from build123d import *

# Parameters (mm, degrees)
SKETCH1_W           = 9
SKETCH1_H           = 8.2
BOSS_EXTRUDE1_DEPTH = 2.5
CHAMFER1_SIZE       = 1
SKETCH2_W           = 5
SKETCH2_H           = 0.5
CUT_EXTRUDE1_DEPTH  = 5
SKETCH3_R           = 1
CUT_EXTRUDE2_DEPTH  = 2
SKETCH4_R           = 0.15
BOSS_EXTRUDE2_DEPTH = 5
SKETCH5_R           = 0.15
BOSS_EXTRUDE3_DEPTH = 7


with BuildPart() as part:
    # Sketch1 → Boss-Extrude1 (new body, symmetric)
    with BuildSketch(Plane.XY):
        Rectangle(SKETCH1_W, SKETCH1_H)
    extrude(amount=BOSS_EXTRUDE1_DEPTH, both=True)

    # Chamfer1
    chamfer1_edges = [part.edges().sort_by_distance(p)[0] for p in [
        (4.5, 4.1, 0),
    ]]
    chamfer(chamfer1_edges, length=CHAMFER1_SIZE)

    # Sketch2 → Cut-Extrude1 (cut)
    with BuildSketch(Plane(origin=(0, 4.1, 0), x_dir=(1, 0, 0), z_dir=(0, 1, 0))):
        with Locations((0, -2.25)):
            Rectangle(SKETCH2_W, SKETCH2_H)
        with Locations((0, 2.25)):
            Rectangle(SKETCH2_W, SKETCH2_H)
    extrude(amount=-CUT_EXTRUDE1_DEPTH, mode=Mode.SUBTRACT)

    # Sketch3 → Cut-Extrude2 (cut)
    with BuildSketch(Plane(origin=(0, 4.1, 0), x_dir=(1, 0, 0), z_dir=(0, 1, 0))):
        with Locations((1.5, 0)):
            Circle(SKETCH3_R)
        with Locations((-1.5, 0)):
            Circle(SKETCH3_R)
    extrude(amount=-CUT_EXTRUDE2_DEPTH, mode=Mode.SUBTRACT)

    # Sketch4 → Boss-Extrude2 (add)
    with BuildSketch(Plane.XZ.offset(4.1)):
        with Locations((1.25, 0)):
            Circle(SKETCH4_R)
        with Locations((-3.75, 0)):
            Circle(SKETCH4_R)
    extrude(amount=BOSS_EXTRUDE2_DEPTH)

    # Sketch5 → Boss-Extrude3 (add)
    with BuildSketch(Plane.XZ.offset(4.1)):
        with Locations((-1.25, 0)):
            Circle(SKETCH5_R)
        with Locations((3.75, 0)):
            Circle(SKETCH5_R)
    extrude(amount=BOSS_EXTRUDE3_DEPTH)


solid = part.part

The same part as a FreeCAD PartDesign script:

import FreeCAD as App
import Part
import Sketcher
from FreeCAD import Vector
Q = App.Units.Quantity


def edges_at(feature, points):
    """Names of the edges that pass closest to the given points."""
    edges = feature.Shape.Edges
    near = lambda p: min(range(len(edges)), key=lambda i: edges[i].distToShape(Part.Vertex(*p))[0])
    return sorted({f"Edge{near(p) + 1}" for p in points})


def add_polygon(sketch, points):
    """Adds a closed chain of lines whose ends are joined by coincident constraints."""
    first, n = sketch.GeometryCount, len(points)
    for a, b in zip(points, points[1:] + points[:1]):
        sketch.addGeometry(Part.LineSegment(App.Vector(*a, 0), App.Vector(*b, 0)), False)
    for i in range(n):
        sketch.addConstraint(Sketcher.Constraint("Coincident", first + i, 2, first + (i + 1) % n, 1))

doc = App.newDocument("Part")
body = doc.addObject("PartDesign::Body", "Body")

# Sketch on XY plane
sketch1 = body.newObject("Sketcher::SketchObject", "Sketch")
sketch1.AttachmentSupport = (doc.getObject("XY_Plane"), [""])
sketch1.MapMode = "FlatFace"
add_polygon(sketch1, [(-4, 4), (-4, -4), (4, -4), (4, 4)])  # lines 0-3
sketch1.addConstraint([
    Sketcher.Constraint("Vertical", 0),
    Sketcher.Constraint("Horizontal", 1),
    Sketcher.Constraint("Vertical", 2),
    Sketcher.Constraint("Horizontal", 3),
    Sketcher.Constraint("Symmetric", 0, 2, 2, 2, -1, 1),
    Sketcher.Constraint("DistanceX", 1, 1, 1, 2, Q("9 mm")),
    Sketcher.Constraint("DistanceY", 0, 2, 0, 1, Q("8.2 mm")),
])
pad1 = body.newObject("PartDesign::Pad", "Pad")
pad1.Profile = sketch1
pad1.Length = 5
pad1.Midplane = True
doc.recompute()

chamfer = body.newObject("PartDesign::Chamfer", "Chamfer")
chamfer.Base = (pad1, edges_at(pad1, [(4.5, 4.1, 0)]))
chamfer.Size = 1

# Sketch on XZ plane
sketch2 = body.newObject("Sketcher::SketchObject", "Sketch001")
sketch2.AttachmentSupport = (doc.getObject("XZ_Plane"), [""])
sketch2.MapMode = "FlatFace"
sketch2.AttachmentOffset = App.Placement(Vector(0, 0, -4.1), App.Rotation())
add_polygon(sketch2, [(-2.5, 2), (-2.5, 2.5), (2.5, 2.5), (2.5, 2)])  # lines 0-3
add_polygon(sketch2, [(-2.5, -2.5), (-2.5, -2), (2.5, -2), (2.5, -2.5)])  # lines 4-7
sketch2.addConstraint([
    Sketcher.Constraint("Vertical", 0),
    Sketcher.Constraint("Horizontal", 1),
    Sketcher.Constraint("Vertical", 2),
    Sketcher.Constraint("Horizontal", 3),
    Sketcher.Constraint("Vertical", 4),
    Sketcher.Constraint("Horizontal", 5),
    Sketcher.Constraint("Vertical", 6),
    Sketcher.Constraint("Horizontal", 7),
    Sketcher.Constraint("Symmetric", 2, 2, 4, 2, -1, 1),
    Sketcher.Constraint("Symmetric", 0, 2, 6, 2, -1, 1),
    Sketcher.Constraint("Vertical", 3, 2, 4, 2),
    Sketcher.Constraint("DistanceX", 1, 1, 1, 2, Q("5 mm")),
    Sketcher.Constraint("DistanceY", 0, 1, 0, 2, Q("0.5 mm")),
    Sketcher.Constraint("DistanceY", -1, 1, 2, 2, Q("2 mm")),
])
pocket1 = body.newObject("PartDesign::Pocket", "Pocket")
pocket1.Profile = sketch2
pocket1.Length = 5
pocket1.Reversed = True

# Sketch on XZ plane
sketch3 = body.newObject("Sketcher::SketchObject", "Sketch002")
sketch3.AttachmentSupport = (doc.getObject("XZ_Plane"), [""])
sketch3.MapMode = "FlatFace"
sketch3.AttachmentOffset = App.Placement(Vector(0, 0, -4.1), App.Rotation())
sketch3.addGeometry([
    Part.Circle(Vector(1.5, 0, 0), Vector(0, 0, 1), 1),
    Part.Circle(Vector(-1.5, 0, 0), Vector(0, 0, 1), 1),
], False)
sketch3.addConstraint([
    Sketcher.Constraint("Equal", 0, 1),
    Sketcher.Constraint("Symmetric", 0, 3, 1, 3, -1, 1),
    Sketcher.Constraint("PointOnObject", 0, 3, -1),
    Sketcher.Constraint("Diameter", 0, Q("2 mm")),
    Sketcher.Constraint("DistanceX", 1, 3, 0, 3, Q("3 mm")),
])
pocket2 = body.newObject("PartDesign::Pocket", "Pocket001")
pocket2.Profile = sketch3
pocket2.Length = 2
pocket2.Reversed = True

# Sketch on XZ plane
sketch4 = body.newObject("Sketcher::SketchObject", "Sketch003")
sketch4.AttachmentSupport = (doc.getObject("XZ_Plane"), [""])
sketch4.MapMode = "FlatFace"
sketch4.AttachmentOffset = App.Placement(Vector(0, 0, 4.1), App.Rotation())
sketch4.addGeometry([
    Part.Circle(Vector(1.25, 0, 0), Vector(0, 0, 1), 0.15),
    Part.Circle(Vector(-3.75, 0, 0), Vector(0, 0, 1), 0.15),
], False)
sketch4.addConstraint([
    Sketcher.Constraint("Equal", 0, 1),
    Sketcher.Constraint("PointOnObject", 0, 3, -1),
    Sketcher.Constraint("PointOnObject", 1, 3, -1),
    Sketcher.Constraint("Diameter", 0, Q("0.3 mm")),
    Sketcher.Constraint("DistanceX", 1, 3, 0, 3, Q("5 mm")),
    Sketcher.Constraint("DistanceX", -1, 1, 0, 3, Q("1.25 mm")),
])
pad2 = body.newObject("PartDesign::Pad", "Pad001")
pad2.Profile = sketch4
pad2.Length = 5

# Sketch on XZ plane
sketch5 = body.newObject("Sketcher::SketchObject", "Sketch004")
sketch5.AttachmentSupport = (doc.getObject("XZ_Plane"), [""])
sketch5.MapMode = "FlatFace"
sketch5.AttachmentOffset = App.Placement(Vector(0, 0, 4.1), App.Rotation())
sketch5.addGeometry([
    Part.Circle(Vector(-1.25, 0, 0), Vector(0, 0, 1), 0.15),
    Part.Circle(Vector(3.75, 0, 0), Vector(0, 0, 1), 0.15),
], False)
sketch5.addConstraint([
    Sketcher.Constraint("Equal", 0, 1),
    Sketcher.Constraint("PointOnObject", 0, 3, -1),
    Sketcher.Constraint("PointOnObject", 1, 3, -1),
    Sketcher.Constraint("Diameter", 0, Q("0.3 mm")),
    Sketcher.Constraint("DistanceX", 0, 3, 1, 3, Q("5 mm")),
    Sketcher.Constraint("DistanceX", 0, 3, -1, 1, Q("1.25 mm")),
])
pad3 = body.newObject("PartDesign::Pad", "Pad002")
pad3.Profile = sketch5
pad3.Length = 7

doc.recompute()
